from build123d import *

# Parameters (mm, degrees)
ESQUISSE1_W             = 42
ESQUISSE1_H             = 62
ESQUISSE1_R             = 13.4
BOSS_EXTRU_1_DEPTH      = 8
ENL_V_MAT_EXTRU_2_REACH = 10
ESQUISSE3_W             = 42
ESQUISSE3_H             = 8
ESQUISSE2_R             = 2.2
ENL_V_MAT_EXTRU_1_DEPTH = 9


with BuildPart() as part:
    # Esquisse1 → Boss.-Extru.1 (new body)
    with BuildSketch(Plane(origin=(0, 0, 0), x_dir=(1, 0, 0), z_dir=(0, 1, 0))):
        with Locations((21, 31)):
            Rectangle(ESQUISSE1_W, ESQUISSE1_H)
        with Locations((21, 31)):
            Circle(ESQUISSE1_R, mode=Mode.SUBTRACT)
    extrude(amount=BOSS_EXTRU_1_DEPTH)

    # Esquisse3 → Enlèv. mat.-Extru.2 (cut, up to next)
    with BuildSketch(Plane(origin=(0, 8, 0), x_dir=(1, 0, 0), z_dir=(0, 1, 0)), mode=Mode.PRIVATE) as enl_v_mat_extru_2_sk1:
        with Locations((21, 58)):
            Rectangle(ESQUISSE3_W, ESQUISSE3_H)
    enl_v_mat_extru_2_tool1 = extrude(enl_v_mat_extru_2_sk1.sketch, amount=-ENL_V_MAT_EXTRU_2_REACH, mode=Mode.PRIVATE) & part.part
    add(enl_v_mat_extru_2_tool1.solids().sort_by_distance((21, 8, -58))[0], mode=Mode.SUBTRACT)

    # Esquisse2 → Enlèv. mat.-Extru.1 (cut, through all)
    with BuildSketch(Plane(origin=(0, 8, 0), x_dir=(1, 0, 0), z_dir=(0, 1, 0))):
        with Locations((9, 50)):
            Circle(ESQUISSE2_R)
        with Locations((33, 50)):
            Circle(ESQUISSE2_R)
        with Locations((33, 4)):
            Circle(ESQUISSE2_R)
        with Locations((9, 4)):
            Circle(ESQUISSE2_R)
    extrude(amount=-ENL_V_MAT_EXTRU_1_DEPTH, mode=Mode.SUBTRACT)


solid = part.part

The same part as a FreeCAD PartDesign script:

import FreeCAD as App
import Part
import Sketcher
from FreeCAD import Vector
Q = App.Units.Quantity

doc = App.newDocument("Part")
body = doc.addObject("PartDesign::Body", "Body")

# Sketch on XZ plane
sketch1 = body.newObject("Sketcher::SketchObject", "Sketch")
sketch1.AttachmentSupport = (doc.getObject("XZ_Plane"), [""])
sketch1.MapMode = "FlatFace"
sketch1.addGeometry([
    Part.LineSegment(Vector(0, -62, 0), Vector(0, 0, 0)),  # 0
    Part.LineSegment(Vector(0, 0, 0), Vector(42, 0, 0)),  # 1
    Part.LineSegment(Vector(42, 0, 0), Vector(42, -62, 0)),  # 2
    Part.LineSegment(Vector(42, -62, 0), Vector(0, -62, 0)),  # 3
    Part.Circle(Vector(21, -31, 0), Vector(0, 0, 1), 13.4),  # 4
], False)
sketch1.addConstraint([
    Sketcher.Constraint("Coincident", 0, 2, 1, 1),
    Sketcher.Constraint("Coincident", 1, 2, 2, 1),
    Sketcher.Constraint("Coincident", 2, 2, 3, 1),
    Sketcher.Constraint("Coincident", 3, 2, 0, 1),
    Sketcher.Constraint("Vertical", 0),
    Sketcher.Constraint("Horizontal", 1),
    Sketcher.Constraint("Vertical", 2),
    Sketcher.Constraint("Horizontal", 3),
    Sketcher.Constraint("Coincident", 0, 2, -1, 1),
    Sketcher.Constraint("Diameter", 4, Q("26.8 mm")),
    Sketcher.Constraint("DistanceX", 1, 1, 1, 2, Q("42 mm")),
    Sketcher.Constraint("DistanceY", 0, 1, 0, 2, Q("62 mm")),
    Sketcher.Constraint("DistanceX", -1, 1, 4, 3, Q("21 mm")),
    Sketcher.Constraint("DistanceY", 4, 3, -1, 1, Q("31 mm")),
])
pad1 = body.newObject("PartDesign::Pad", "Pad")
pad1.Profile = sketch1
pad1.Length = 8
pad1.Reversed = True

# Sketch on XZ plane
sketch2 = body.newObject("Sketcher::SketchObject", "Sketch001")
sketch2.AttachmentSupport = (doc.getObject("XZ_Plane"), [""])
sketch2.MapMode = "FlatFace"
sketch2.AttachmentOffset = App.Placement(Vector(0, 0, -8), App.Rotation())
sketch2.addGeometry([
    Part.LineSegment(Vector(0, -62, 0), Vector(0, -54, 0)),
    Part.LineSegment(Vector(0, -54, 0), Vector(42, -54, 0)),
    Part.LineSegment(Vector(42, -54, 0), Vector(42, -62, 0)),
    Part.LineSegment(Vector(42, -62, 0), Vector(0, -62, 0)),
], False)
sketch2.addConstraint([
    Sketcher.Constraint("Coincident", 0, 2, 1, 1),
    Sketcher.Constraint("Coincident", 1, 2, 2, 1),
    Sketcher.Constraint("Coincident", 2, 2, 3, 1),
    Sketcher.Constraint("Coincident", 3, 2, 0, 1),
    Sketcher.Constraint("Vertical", 0),
    Sketcher.Constraint("Horizontal", 1),
    Sketcher.Constraint("Vertical", 2),
    Sketcher.Constraint("Horizontal", 3),
    Sketcher.Constraint("PointOnObject", 0, 2, -2),
    Sketcher.Constraint("DistanceX", 1, 1, 1, 2, Q("42 mm")),
    Sketcher.Constraint("DistanceY", 0, 1, 0, 2, Q("8 mm")),
    Sketcher.Constraint("DistanceY", 0, 2, -1, 1, Q("54 mm")),
])
pocket1 = body.newObject("PartDesign::Pocket", "Pocket")
pocket1.Profile = sketch2
pocket1.Type = "UpToFirst"
pocket1.Reversed = True

# Sketch on XZ plane
sketch3 = body.newObject("Sketcher::SketchObject", "Sketch002")
sketch3.AttachmentSupport = (doc.getObject("XZ_Plane"), [""])
sketch3.MapMode = "FlatFace"
sketch3.AttachmentOffset = App.Placement(Vector(0, 0, -8), App.Rotation())
sketch3.addGeometry([
    Part.Circle(Vector(9, -50, 0), Vector(0, 0, 1), 2.2),
    Part.Circle(Vector(33, -50, 0), Vector(0, 0, 1), 2.2),
    Part.Circle(Vector(33, -4, 0), Vector(0, 0, 1), 2.2),
    Part.Circle(Vector(9, -4, 0), Vector(0, 0, 1), 2.2),
], False)
sketch3.addConstraint([
    Sketcher.Constraint("Equal", 0, 1),
    Sketcher.Constraint("Equal", 1, 2),
    Sketcher.Constraint("Equal", 2, 3),
    Sketcher.Constraint("Horizontal", 0, 3, 1, 3),
    Sketcher.Constraint("Horizontal", 2, 3, 3, 3),
    Sketcher.Constraint("Vertical", 1, 3, 2, 3),
    Sketcher.Constraint("Vertical", 0, 3, 3, 3),
    Sketcher.Constraint("Diameter", 0, Q("4.4 mm")),
    Sketcher.Constraint("DistanceX", -1, 1, 0, 3, Q("9 mm")),
    Sketcher.Constraint("DistanceY", 0, 3, -1, 1, Q("50 mm")),
    Sketcher.Constraint("DistanceX", -1, 1, 1, 3, Q("33 mm")),
    Sketcher.Constraint("DistanceY", 2, 3, -1, 1, Q("4 mm")),
])
pocket2 = body.newObject("PartDesign::Pocket", "Pocket001")
pocket2.Profile = sketch3
pocket2.Type = "ThroughAll"
pocket2.Reversed = True

doc.recompute()
